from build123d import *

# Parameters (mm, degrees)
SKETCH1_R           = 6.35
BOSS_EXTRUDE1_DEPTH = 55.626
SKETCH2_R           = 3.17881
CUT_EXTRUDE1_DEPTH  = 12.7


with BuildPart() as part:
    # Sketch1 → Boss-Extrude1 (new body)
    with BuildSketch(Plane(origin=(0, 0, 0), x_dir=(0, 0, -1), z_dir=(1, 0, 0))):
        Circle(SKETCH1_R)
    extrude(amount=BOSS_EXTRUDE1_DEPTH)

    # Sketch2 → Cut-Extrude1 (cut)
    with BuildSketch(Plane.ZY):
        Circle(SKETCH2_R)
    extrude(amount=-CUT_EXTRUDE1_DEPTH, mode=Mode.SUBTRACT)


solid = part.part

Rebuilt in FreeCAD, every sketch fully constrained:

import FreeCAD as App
import Part
import Sketcher

V = App.Vector
Q = App.Units.Quantity

doc = App.newDocument("Part")
body = doc.addObject("PartDesign::Body", "Body")

# Sketch on YZ plane
sketch1 = body.newObject("Sketcher::SketchObject", "Sketch")
sketch1.AttachmentSupport = (doc.getObject("YZ_Plane"), [""])
sketch1.MapMode = "FlatFace"
sketch1.addGeometry(Part.Circle(V(0, 0, 0), V(0, 0, 1), 6.35), False)
sketch1.addConstraint([
    Sketcher.Constraint("Coincident", 0, 3, -1, 1),
    Sketcher.Constraint("Diameter", 0, Q("0.5 in")),
])
pad1 = body.newObject("PartDesign::Pad", "Pad")
pad1.Profile = sketch1
pad1.Length = Q("2.19 in")

# Sketch on YZ plane
sketch2 = body.newObject("Sketcher::SketchObject", "Sketch001")
sketch2.AttachmentSupport = (doc.getObject("YZ_Plane"), [""])
sketch2.MapMode = "FlatFace"
sketch2.addGeometry(Part.Circle(V(0, 0, 0), V(0, 0, 1), 3.17881), False)
sketch2.addConstraint([
    Sketcher.Constraint("Coincident", 0, 3, -1, 1),
    Sketcher.Constraint("Diameter", 0, Q("0.2503 in")),
])
pocket1 = body.newObject("PartDesign::Pocket", "Pocket")
pocket1.Profile = sketch2
pocket1.Length = Q("0.5 in")
pocket1.Reversed = True

doc.recompute()
